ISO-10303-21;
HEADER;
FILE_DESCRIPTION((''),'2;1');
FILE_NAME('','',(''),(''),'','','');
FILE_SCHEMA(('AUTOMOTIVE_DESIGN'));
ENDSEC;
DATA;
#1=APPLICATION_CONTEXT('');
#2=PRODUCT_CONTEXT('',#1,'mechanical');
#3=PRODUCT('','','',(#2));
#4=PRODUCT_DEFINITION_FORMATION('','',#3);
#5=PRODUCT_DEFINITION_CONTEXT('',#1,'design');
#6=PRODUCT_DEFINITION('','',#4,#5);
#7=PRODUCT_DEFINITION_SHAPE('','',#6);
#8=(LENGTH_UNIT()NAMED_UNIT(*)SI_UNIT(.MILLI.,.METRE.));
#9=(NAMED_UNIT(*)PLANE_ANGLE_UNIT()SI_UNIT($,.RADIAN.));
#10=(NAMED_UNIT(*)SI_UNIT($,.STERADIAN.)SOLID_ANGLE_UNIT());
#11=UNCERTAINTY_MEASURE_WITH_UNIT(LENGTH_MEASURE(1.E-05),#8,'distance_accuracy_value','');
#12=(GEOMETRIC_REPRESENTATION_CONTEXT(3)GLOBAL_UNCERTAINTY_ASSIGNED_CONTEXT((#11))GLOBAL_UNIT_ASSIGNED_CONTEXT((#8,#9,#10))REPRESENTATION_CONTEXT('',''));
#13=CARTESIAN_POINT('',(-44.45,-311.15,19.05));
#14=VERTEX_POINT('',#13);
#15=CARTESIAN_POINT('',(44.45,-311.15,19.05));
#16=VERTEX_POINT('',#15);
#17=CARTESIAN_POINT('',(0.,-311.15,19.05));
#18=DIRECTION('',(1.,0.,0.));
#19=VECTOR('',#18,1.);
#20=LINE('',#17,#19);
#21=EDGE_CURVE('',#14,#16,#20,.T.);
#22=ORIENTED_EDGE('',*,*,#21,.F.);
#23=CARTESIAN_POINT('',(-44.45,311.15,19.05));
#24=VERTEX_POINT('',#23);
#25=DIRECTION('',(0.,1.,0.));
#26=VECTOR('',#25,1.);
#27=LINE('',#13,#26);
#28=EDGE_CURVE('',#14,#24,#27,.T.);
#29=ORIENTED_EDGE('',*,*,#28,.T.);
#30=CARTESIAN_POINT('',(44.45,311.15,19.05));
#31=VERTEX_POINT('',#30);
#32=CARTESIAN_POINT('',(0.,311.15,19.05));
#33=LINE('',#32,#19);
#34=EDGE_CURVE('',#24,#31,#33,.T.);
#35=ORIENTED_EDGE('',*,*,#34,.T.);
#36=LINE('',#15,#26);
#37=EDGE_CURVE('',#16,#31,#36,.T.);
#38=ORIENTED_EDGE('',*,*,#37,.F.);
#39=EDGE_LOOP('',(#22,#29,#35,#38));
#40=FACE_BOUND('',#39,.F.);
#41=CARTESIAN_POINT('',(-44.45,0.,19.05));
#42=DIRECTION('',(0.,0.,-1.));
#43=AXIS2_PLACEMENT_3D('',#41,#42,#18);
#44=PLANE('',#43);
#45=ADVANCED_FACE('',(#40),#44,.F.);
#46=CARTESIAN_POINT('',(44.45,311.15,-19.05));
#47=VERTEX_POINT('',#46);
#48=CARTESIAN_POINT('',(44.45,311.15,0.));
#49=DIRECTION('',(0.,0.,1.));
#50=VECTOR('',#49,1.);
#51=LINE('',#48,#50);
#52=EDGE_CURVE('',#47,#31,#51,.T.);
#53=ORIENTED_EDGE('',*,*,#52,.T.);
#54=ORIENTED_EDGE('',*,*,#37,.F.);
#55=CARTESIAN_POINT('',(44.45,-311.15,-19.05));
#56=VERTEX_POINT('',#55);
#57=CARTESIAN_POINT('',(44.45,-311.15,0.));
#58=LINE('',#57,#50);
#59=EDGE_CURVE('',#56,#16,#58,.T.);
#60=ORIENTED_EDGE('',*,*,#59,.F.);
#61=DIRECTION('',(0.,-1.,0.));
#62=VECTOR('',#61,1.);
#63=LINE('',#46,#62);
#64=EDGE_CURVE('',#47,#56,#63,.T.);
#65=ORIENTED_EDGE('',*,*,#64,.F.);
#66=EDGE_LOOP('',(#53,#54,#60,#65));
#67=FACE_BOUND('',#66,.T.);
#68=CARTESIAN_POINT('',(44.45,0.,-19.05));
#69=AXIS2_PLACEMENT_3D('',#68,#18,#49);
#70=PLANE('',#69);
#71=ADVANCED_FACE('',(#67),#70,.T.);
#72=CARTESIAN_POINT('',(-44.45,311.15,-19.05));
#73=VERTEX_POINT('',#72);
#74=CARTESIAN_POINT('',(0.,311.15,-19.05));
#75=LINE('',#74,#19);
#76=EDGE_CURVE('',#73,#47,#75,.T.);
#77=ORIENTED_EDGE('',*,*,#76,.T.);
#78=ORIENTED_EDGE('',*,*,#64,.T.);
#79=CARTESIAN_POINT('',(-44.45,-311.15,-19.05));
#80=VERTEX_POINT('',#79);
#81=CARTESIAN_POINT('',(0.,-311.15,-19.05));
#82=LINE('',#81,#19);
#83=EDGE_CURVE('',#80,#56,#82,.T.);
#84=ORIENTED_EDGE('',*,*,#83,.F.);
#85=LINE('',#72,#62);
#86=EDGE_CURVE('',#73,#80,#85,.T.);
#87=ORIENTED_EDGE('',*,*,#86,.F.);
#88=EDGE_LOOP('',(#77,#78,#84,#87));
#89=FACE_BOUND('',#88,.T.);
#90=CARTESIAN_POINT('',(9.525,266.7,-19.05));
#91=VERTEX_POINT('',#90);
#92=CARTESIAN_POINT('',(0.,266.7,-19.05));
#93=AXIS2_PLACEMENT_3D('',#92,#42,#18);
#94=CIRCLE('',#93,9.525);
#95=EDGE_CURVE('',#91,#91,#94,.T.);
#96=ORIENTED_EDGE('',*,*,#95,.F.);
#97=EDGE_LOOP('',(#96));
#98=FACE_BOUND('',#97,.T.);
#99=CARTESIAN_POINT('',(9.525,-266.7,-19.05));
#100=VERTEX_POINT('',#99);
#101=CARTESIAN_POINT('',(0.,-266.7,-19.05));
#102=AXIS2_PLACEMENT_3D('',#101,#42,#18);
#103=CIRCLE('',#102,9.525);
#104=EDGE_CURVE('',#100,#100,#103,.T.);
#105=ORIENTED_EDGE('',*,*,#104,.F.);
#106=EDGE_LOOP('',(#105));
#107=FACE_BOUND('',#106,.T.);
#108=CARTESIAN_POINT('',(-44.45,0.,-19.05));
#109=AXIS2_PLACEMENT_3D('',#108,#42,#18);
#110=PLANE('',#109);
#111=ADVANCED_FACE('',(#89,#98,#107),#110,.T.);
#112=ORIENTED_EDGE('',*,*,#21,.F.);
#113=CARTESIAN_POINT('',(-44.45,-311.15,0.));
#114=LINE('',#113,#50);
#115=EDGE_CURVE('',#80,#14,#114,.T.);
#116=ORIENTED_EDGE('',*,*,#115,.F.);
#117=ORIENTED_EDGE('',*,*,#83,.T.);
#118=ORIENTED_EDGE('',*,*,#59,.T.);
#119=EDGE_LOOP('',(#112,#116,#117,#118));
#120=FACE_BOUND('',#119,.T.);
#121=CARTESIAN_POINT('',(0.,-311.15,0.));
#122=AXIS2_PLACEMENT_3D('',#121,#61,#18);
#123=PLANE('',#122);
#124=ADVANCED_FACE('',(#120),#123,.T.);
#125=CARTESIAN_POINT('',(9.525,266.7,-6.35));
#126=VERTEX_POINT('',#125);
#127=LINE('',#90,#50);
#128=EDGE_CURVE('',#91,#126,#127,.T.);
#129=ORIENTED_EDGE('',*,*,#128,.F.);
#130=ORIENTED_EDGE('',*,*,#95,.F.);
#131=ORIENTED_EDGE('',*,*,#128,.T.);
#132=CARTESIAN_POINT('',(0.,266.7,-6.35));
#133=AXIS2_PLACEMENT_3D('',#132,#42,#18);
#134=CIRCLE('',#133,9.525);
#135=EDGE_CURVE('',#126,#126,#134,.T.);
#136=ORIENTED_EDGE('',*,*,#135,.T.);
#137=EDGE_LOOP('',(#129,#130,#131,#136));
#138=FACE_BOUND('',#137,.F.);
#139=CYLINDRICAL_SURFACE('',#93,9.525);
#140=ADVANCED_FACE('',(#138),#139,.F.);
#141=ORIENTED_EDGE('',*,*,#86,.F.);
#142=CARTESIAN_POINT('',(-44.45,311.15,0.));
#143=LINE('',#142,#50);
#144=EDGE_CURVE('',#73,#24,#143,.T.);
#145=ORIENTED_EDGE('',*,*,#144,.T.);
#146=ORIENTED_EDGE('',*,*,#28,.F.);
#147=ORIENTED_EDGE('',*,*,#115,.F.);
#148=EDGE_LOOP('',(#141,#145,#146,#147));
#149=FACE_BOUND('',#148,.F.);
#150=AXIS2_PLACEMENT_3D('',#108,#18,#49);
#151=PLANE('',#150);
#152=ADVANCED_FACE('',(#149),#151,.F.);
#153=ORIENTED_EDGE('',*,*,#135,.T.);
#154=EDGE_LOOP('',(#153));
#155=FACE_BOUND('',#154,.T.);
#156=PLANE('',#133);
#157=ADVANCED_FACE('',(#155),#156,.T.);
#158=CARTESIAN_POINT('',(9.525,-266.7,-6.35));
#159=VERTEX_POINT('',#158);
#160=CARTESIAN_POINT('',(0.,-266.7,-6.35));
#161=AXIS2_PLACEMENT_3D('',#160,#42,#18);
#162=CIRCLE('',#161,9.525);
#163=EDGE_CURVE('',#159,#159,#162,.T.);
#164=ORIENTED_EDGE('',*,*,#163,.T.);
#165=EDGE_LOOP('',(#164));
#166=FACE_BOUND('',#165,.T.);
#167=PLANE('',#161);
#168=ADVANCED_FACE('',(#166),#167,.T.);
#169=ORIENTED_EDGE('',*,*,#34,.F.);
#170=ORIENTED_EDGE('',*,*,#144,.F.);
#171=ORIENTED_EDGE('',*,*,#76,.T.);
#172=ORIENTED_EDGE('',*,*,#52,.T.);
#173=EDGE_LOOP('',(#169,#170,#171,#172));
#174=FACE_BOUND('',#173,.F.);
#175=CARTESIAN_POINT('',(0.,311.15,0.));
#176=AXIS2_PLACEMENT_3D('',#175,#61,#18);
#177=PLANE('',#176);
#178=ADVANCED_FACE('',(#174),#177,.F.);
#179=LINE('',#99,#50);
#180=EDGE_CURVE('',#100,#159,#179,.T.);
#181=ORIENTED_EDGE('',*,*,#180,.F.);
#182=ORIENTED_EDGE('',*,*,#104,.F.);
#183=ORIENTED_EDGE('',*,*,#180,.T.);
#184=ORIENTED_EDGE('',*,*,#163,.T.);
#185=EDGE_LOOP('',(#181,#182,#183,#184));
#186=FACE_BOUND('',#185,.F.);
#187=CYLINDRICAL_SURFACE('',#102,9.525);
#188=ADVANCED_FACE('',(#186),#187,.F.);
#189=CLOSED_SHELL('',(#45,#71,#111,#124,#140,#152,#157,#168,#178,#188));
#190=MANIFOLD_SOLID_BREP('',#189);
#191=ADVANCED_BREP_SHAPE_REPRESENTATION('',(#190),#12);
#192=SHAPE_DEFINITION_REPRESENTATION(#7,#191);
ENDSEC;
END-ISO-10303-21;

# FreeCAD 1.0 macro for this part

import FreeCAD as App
import Part
import Sketcher

V = App.Vector
Q = App.Units.Quantity

doc = App.newDocument("Part")
body = doc.addObject("PartDesign::Body", "Body")

sketch1 = body.newObject("Sketcher::SketchObject", "Sketch")
sketch1.AttachmentSupport = (doc.getObject("XZ_Plane"), [""])
sketch1.MapMode = "FlatFace"
sketch1.addGeometry(Part.LineSegment(V(-44, 19, 0), V(-44, -19, 0)), False)
sketch1.addGeometry(Part.LineSegment(V(-44, -19, 0), V(44, -19, 0)), False)
sketch1.addGeometry(Part.LineSegment(V(44, -19, 0), V(44, 19, 0)), False)
sketch1.addGeometry(Part.LineSegment(V(44, 19, 0), V(-44, 19, 0)), False)
sketch1.addConstraint(Sketcher.Constraint("Coincident", 0, 2, 1, 1))
sketch1.addConstraint(Sketcher.Constraint("Coincident", 1, 2, 2, 1))
sketch1.addConstraint(Sketcher.Constraint("Coincident", 2, 2, 3, 1))
sketch1.addConstraint(Sketcher.Constraint("Coincident", 3, 2, 0, 1))
sketch1.addConstraint(Sketcher.Constraint("Vertical", 0))
sketch1.addConstraint(Sketcher.Constraint("Horizontal", 1))
sketch1.addConstraint(Sketcher.Constraint("Vertical", 2))
sketch1.addConstraint(Sketcher.Constraint("Horizontal", 3))
sketch1.addConstraint(Sketcher.Constraint("Symmetric", 0, 2, 2, 2, -1, 1))
sketch1.addConstraint(Sketcher.Constraint("DistanceX", 1, 1, 1, 2, Q("3.5 in")))
sketch1.addConstraint(Sketcher.Constraint("DistanceY", 0, 2, 0, 1, Q("1.5 in")))
pad1 = body.newObject("PartDesign::Pad", "Pad")
pad1.Profile = sketch1
pad1.Length = Q("24.5 in")
pad1.Midplane = True

sketch2 = body.newObject("Sketcher::SketchObject", "Sketch001")
sketch2.AttachmentSupport = (doc.getObject("XY_Plane"), [""])
sketch2.MapMode = "FlatFace"
sketch2.AttachmentOffset = App.Placement(V(0, 0, -0.75 * 25.4), App.Rotation())
sketch2.addGeometry(Part.Circle(V(0, -267, 0), V(0, 0, 1), 10), False)
sketch2.addGeometry(Part.Circle(V(0, 267, 0), V(0, 0, 1), 10), False)
sketch2.addConstraint(Sketcher.Constraint("Equal", 0, 1))
sketch2.addConstraint(Sketcher.Constraint("Symmetric", 0, 3, 1, 3, -1, 1))
sketch2.addConstraint(Sketcher.Constraint("PointOnObject", 0, 3, -2))
sketch2.addConstraint(Sketcher.Constraint("Diameter", 0, Q("0.75 in")))
sketch2.addConstraint(Sketcher.Constraint("DistanceY", 0, 3, 1, 3, Q("21 in")))
pocket1 = body.newObject("PartDesign::Pocket", "Pocket")
pocket1.Profile = sketch2
pocket1.Length = Q("0.5 in")
pocket1.Reversed = True

doc.recompute()
